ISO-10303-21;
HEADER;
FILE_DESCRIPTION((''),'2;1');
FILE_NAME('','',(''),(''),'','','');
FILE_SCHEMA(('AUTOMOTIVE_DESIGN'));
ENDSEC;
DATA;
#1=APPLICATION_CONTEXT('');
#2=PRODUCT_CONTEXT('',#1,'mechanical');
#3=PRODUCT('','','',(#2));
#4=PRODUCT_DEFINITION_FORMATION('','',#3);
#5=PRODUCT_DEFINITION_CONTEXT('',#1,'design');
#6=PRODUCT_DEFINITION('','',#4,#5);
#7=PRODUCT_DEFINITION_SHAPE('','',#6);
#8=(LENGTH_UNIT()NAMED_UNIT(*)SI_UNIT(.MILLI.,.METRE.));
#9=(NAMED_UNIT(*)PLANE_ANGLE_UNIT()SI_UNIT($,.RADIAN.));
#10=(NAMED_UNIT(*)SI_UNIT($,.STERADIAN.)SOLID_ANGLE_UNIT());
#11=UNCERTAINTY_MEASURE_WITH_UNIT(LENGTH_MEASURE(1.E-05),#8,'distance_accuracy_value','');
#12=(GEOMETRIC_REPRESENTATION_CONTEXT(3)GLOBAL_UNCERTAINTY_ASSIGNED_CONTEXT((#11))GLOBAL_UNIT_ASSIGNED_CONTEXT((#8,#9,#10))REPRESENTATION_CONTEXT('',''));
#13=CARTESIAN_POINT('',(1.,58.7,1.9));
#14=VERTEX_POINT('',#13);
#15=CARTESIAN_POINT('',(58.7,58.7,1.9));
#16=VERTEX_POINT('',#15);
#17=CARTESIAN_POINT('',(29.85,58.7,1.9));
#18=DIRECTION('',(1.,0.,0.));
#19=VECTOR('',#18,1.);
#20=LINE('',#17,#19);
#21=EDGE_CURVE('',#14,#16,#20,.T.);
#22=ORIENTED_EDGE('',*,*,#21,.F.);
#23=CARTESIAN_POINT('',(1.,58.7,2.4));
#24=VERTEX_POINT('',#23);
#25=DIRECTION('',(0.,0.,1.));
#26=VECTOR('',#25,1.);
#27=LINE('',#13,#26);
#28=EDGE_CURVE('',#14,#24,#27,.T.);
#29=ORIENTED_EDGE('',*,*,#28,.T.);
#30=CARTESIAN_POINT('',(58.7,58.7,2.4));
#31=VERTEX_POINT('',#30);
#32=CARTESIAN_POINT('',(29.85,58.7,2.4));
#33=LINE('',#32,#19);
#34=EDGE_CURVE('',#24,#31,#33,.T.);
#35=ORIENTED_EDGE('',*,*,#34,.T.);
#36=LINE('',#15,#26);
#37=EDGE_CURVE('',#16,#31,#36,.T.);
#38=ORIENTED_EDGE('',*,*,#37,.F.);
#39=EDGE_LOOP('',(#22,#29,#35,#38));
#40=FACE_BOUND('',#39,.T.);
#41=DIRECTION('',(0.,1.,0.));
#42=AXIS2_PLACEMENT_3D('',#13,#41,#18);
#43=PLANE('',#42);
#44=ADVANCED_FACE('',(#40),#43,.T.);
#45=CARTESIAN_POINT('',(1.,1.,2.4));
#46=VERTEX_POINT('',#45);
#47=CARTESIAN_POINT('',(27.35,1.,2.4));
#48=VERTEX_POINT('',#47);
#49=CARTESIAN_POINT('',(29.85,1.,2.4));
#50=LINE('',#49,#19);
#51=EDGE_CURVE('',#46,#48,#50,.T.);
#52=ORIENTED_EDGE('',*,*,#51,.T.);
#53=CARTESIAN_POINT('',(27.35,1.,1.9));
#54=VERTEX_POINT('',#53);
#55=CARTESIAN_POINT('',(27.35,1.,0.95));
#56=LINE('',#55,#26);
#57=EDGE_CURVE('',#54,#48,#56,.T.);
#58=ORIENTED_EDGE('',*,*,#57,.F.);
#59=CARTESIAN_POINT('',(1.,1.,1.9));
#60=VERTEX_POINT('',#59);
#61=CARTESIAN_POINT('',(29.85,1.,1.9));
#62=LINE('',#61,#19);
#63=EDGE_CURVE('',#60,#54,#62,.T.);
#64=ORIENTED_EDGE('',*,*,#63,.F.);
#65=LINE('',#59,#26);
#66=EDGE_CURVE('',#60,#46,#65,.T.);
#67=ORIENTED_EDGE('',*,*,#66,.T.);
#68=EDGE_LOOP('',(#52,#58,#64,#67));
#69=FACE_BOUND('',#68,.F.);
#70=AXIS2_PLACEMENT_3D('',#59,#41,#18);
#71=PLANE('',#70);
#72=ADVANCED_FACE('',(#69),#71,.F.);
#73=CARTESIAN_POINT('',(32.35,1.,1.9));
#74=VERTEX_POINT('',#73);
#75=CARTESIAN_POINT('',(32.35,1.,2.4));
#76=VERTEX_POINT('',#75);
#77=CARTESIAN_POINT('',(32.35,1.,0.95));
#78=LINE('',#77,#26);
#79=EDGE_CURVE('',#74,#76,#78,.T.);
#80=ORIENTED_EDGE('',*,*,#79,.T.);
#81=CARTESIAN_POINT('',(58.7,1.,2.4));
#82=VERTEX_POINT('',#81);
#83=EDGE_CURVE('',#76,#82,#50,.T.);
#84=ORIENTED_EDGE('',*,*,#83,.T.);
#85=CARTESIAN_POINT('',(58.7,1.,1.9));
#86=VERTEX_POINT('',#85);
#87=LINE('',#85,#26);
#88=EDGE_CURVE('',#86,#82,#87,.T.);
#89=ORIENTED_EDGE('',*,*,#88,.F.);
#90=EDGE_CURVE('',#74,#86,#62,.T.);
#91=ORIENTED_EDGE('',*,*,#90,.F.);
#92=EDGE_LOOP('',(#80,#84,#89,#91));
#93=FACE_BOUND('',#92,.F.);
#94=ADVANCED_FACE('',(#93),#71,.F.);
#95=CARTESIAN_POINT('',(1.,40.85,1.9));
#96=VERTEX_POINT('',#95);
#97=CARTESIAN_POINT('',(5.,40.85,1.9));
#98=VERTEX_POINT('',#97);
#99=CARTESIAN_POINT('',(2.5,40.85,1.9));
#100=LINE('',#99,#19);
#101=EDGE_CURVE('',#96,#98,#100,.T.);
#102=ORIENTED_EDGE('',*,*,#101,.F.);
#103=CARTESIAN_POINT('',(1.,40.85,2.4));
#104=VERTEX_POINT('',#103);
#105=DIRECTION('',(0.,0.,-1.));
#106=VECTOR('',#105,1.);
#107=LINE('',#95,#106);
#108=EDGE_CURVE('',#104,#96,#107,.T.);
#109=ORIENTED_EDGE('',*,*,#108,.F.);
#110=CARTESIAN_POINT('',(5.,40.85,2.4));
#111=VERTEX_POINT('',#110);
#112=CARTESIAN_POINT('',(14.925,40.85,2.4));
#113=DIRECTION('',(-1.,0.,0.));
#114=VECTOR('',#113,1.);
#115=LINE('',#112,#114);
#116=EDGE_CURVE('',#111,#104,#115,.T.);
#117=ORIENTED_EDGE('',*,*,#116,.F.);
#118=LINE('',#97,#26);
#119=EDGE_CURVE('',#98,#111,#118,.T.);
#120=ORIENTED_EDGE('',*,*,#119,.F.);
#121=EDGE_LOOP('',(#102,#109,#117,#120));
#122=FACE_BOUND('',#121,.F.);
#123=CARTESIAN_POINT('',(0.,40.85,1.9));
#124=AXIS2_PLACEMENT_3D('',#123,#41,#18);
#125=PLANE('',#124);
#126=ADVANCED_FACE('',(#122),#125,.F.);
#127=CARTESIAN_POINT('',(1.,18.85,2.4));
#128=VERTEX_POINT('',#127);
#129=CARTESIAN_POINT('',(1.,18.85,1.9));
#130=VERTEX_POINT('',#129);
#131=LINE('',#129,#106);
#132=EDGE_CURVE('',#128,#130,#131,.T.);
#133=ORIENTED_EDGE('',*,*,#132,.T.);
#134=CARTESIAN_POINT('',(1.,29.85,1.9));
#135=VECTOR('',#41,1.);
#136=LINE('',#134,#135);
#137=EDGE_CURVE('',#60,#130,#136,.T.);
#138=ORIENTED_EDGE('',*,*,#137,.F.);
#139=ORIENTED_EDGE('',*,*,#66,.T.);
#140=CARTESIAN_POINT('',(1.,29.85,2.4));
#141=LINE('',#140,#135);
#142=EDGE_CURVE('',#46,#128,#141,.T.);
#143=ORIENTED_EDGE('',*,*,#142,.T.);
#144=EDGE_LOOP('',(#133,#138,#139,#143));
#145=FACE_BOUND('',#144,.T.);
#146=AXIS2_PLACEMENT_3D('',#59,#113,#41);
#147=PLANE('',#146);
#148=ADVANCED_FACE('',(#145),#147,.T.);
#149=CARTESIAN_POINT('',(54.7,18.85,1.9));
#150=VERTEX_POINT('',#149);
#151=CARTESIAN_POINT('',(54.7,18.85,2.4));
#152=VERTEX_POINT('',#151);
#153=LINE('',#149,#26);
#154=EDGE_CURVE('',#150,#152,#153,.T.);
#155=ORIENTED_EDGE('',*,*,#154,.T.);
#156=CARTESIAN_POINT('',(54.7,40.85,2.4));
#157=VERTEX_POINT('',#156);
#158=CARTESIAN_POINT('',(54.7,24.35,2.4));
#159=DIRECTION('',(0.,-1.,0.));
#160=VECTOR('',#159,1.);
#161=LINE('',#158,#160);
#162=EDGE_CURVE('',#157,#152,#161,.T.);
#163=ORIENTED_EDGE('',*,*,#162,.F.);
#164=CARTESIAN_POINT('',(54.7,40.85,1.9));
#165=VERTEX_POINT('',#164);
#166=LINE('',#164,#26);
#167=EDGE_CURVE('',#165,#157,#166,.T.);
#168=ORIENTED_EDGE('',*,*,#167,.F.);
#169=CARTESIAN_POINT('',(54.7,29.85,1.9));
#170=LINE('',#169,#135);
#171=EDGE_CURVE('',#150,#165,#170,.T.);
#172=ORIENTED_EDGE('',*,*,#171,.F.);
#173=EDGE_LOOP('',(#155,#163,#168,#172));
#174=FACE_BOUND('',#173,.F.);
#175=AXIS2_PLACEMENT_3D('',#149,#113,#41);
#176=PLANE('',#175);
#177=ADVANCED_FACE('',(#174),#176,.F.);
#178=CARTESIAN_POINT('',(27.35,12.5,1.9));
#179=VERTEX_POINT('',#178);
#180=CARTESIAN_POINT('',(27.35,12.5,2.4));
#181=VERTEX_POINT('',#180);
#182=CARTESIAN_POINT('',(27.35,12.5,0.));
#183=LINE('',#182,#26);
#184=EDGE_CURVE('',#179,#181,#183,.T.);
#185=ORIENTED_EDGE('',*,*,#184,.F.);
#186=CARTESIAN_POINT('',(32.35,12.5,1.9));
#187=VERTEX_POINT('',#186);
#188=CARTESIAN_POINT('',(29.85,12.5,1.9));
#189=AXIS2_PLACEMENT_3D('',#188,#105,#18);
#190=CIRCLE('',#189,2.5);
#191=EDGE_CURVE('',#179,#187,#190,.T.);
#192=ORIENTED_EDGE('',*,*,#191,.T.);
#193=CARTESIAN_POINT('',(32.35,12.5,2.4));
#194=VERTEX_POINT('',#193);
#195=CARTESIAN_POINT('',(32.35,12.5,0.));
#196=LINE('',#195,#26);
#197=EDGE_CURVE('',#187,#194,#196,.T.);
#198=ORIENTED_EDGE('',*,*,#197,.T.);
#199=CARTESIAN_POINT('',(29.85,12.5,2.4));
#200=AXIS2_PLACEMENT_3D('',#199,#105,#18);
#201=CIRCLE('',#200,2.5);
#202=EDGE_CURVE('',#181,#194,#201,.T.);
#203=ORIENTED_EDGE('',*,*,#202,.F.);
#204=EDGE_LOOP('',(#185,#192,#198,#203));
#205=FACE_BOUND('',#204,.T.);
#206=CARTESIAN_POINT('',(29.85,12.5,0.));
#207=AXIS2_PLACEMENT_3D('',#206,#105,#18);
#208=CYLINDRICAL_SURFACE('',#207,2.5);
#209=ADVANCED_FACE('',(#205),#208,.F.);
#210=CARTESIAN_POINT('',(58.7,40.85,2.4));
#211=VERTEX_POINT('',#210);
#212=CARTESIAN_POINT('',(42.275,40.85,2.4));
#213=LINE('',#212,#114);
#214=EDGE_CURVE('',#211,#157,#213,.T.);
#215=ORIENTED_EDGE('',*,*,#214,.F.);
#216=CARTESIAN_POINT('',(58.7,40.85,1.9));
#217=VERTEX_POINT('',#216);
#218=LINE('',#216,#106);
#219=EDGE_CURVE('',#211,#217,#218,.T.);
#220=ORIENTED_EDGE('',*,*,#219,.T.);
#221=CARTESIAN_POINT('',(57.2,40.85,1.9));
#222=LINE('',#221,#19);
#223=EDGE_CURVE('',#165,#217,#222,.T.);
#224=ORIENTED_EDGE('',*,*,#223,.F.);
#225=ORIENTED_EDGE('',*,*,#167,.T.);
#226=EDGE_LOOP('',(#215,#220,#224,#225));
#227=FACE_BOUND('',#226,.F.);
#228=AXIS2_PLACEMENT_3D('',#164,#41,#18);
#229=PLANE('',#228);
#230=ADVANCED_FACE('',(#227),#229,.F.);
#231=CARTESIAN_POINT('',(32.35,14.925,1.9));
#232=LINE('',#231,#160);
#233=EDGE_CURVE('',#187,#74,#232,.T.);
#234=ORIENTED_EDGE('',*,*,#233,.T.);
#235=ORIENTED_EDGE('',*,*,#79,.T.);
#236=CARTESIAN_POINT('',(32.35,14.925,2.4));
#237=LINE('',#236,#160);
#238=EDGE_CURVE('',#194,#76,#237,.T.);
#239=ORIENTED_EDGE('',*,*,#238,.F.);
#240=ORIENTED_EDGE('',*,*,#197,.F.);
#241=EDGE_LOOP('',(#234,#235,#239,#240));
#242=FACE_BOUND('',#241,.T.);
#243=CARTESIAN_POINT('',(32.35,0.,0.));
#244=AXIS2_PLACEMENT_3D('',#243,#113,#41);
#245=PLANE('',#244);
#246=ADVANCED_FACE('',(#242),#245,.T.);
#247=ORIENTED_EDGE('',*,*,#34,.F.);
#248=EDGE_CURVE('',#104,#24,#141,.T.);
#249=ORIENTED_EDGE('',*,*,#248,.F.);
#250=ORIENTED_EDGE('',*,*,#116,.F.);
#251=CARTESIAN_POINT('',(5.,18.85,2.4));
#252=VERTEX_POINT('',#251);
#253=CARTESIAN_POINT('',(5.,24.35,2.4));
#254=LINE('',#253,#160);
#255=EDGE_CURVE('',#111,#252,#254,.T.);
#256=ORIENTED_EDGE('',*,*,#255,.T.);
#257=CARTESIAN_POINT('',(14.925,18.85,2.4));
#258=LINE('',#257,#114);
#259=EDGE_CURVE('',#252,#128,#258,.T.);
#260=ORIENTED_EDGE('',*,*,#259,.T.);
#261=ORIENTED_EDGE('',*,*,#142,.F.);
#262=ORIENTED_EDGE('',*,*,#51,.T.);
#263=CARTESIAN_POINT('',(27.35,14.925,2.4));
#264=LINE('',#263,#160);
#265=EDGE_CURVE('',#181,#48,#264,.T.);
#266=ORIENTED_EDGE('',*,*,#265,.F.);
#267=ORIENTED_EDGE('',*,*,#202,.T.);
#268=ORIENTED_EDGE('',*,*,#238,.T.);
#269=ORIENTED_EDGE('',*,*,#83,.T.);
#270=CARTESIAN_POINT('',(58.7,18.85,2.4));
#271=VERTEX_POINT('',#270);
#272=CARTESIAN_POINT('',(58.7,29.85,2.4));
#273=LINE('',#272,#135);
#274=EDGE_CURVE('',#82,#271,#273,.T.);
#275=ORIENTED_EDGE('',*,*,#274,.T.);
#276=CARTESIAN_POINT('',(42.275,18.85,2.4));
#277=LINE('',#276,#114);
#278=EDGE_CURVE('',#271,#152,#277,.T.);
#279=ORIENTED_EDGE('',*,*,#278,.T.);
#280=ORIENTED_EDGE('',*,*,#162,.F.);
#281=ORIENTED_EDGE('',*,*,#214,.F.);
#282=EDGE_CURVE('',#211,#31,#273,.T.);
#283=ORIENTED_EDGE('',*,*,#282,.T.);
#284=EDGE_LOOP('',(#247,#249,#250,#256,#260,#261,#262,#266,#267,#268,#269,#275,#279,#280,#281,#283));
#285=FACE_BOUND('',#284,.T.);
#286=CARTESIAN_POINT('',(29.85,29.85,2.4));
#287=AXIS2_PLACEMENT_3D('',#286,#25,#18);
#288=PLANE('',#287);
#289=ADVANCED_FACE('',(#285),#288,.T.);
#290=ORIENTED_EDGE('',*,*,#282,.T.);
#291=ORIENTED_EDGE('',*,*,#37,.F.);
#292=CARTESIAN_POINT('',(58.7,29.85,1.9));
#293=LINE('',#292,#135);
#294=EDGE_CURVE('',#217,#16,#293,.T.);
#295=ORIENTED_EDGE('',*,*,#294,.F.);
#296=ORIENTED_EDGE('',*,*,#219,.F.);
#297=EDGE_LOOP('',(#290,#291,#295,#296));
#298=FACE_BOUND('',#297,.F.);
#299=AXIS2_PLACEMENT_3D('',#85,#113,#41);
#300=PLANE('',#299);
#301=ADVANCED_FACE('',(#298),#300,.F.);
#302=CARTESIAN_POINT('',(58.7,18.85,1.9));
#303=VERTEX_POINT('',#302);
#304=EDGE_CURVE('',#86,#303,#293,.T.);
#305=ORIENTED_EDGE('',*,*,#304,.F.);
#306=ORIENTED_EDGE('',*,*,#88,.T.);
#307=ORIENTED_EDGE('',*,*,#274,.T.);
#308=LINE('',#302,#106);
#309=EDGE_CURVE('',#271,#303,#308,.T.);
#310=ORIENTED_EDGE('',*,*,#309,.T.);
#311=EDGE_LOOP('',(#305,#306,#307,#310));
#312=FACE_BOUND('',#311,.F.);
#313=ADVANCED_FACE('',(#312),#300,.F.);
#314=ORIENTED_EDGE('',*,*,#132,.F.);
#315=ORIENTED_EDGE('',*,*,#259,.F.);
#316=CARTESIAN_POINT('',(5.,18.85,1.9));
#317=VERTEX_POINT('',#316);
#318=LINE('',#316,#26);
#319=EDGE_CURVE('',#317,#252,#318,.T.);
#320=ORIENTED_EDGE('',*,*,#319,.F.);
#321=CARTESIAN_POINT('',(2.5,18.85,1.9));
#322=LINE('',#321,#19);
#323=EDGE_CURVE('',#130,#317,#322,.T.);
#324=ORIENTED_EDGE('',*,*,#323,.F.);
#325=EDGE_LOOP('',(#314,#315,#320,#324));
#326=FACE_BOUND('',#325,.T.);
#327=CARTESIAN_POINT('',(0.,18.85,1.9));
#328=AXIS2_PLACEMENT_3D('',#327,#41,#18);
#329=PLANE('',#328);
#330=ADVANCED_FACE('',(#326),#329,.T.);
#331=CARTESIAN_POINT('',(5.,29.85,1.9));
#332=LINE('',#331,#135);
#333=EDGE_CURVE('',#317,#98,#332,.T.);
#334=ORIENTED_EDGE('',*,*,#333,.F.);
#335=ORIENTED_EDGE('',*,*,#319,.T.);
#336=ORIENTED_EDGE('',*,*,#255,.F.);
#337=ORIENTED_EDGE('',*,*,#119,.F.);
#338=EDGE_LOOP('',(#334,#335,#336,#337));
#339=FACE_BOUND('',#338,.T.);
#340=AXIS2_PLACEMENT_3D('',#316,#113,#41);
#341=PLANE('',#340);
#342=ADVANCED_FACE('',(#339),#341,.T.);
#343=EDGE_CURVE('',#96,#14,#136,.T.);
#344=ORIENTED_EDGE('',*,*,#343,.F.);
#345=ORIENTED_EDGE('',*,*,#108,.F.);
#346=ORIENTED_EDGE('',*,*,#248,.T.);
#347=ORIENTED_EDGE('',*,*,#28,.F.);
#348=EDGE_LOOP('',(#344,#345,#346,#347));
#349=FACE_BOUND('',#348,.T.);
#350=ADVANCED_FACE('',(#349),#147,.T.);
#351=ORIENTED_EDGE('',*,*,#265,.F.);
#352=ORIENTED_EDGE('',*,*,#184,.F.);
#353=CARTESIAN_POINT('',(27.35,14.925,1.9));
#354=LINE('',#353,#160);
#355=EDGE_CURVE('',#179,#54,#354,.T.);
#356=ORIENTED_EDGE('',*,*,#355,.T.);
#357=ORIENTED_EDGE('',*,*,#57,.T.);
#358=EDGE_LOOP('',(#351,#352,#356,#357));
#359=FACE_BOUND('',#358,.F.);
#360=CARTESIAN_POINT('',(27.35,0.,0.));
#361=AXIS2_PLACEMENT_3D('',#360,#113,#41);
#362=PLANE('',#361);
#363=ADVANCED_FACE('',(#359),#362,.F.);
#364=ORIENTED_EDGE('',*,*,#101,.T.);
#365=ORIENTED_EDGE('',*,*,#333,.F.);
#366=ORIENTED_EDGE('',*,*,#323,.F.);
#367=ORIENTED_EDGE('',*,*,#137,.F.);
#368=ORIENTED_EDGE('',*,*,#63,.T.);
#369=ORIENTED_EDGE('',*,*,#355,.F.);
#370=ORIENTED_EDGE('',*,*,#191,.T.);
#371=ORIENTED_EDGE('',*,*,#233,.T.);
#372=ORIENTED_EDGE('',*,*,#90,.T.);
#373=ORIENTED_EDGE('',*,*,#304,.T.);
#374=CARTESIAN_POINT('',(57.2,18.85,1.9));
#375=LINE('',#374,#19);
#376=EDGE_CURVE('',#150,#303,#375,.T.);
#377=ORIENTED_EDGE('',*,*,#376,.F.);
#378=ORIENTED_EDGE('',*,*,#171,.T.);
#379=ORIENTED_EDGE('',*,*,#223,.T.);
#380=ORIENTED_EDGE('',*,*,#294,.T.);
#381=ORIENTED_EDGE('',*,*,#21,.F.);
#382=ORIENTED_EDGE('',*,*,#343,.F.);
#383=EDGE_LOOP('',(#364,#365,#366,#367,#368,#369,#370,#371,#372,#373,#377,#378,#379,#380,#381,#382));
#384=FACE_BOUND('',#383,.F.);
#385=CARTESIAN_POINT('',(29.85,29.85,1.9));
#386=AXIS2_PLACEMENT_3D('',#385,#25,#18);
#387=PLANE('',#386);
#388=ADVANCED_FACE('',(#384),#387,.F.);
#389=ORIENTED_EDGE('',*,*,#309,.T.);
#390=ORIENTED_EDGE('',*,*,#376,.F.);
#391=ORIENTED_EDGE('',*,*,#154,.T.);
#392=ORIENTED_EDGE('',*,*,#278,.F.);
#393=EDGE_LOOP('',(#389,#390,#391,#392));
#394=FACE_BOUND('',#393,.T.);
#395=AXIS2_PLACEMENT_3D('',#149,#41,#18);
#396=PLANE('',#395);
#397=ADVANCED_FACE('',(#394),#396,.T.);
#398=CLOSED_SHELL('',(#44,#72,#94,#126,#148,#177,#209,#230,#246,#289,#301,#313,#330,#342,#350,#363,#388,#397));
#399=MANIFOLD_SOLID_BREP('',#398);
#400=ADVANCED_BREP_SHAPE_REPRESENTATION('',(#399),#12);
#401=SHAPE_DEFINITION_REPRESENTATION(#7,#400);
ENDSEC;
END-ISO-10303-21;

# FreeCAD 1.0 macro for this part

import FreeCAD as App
import Part
import Sketcher
from FreeCAD import Vector
Q = App.Units.Quantity

doc = App.newDocument("Part")
body = doc.addObject("PartDesign::Body", "Body")

# Sketch on XY plane
sketch1 = doc.addObject("Sketcher::SketchObject", "Sketch")
body.addObject(sketch1)
sketch1.AttachmentSupport = (doc.XY_Plane, [""])
sketch1.MapMode = "FlatFace"
sketch1.addGeometry([
    Part.LineSegment(Vector(27, 12, 0), Vector(27, 0, 0)),
    Part.LineSegment(Vector(27, 0, 0), Vector(32, 0, 0)),
    Part.LineSegment(Vector(32, 0, 0), Vector(32, 12, 0)),
    Part.LineSegment(Vector(32, 12, 0), Vector(27, 12, 0)),
], False)
sketch1.addConstraint([
    Sketcher.Constraint("Coincident", 0, 2, 1, 1),
    Sketcher.Constraint("Coincident", 1, 2, 2, 1),
    Sketcher.Constraint("Coincident", 2, 2, 3, 1),
    Sketcher.Constraint("Coincident", 3, 2, 0, 1),
    Sketcher.Constraint("Vertical", 0),
    Sketcher.Constraint("Horizontal", 1),
    Sketcher.Constraint("Vertical", 2),
    Sketcher.Constraint("Horizontal", 3),
    Sketcher.Constraint("PointOnObject", 0, 2, -1),
    Sketcher.Constraint("DistanceX", 1, 1, 1, 2, Q("5 mm")),
    Sketcher.Constraint("DistanceY", 0, 2, 0, 1, Q("12.5 mm")),
    Sketcher.Constraint("DistanceX", -1, 1, 0, 2, Q("27.35 mm")),
])
pad1 = doc.addObject("PartDesign::Pad", "Pad")
body.addObject(pad1)
pad1.Profile = sketch1
pad1.Length = 5
body2 = doc.addObject("PartDesign::Body", "Body001")

# Sketch on XY plane
sketch2 = doc.addObject("Sketcher::SketchObject", "Sketch001")
body2.addObject(sketch2)
sketch2.AttachmentSupport = (doc.getObject("XY_Plane001"), [""])
sketch2.MapMode = "FlatFace"
sketch2.addGeometry(Part.Circle(Vector(29.9, 12.5, 0), Vector(0, 0, 1), 2.5), False)
sketch2.addConstraint([
    Sketcher.Constraint("Diameter", 0, Q("5 mm")),
    Sketcher.Constraint("DistanceY", -1, 1, 0, 3, Q("12.5 mm")),
    Sketcher.Constraint("DistanceX", -1, 1, 0, 3, Q("29.85 mm")),
])
pad2 = doc.addObject("PartDesign::Pad", "Pad001")
body2.addObject(pad2)
pad2.Profile = sketch2
pad2.Length = 5
body3 = doc.addObject("PartDesign::Body", "Body002")

# Sketch on XY plane
sketch3 = doc.addObject("Sketcher::SketchObject", "Sketch002")
body3.addObject(sketch3)
sketch3.AttachmentSupport = (doc.getObject("XY_Plane002"), [""])
sketch3.MapMode = "FlatFace"
sketch3.AttachmentOffset = App.Placement(Vector(0, 0, 1.9), App.Rotation())
sketch3.addGeometry([
    Part.LineSegment(Vector(55, 41, 0), Vector(55, 19, 0)),
    Part.LineSegment(Vector(55, 19, 0), Vector(60, 19, 0)),
    Part.LineSegment(Vector(60, 19, 0), Vector(60, 41, 0)),
    Part.LineSegment(Vector(60, 41, 0), Vector(55, 41, 0)),
], False)
sketch3.addConstraint([
    Sketcher.Constraint("Coincident", 0, 2, 1, 1),
    Sketcher.Constraint("Coincident", 1, 2, 2, 1),
    Sketcher.Constraint("Coincident", 2, 2, 3, 1),
    Sketcher.Constraint("Coincident", 3, 2, 0, 1),
    Sketcher.Constraint("Vertical", 0),
    Sketcher.Constraint("Horizontal", 1),
    Sketcher.Constraint("Vertical", 2),
    Sketcher.Constraint("Horizontal", 3),
    Sketcher.Constraint("DistanceX", 1, 1, 1, 2, Q("5 mm")),
    Sketcher.Constraint("DistanceY", 0, 2, 0, 1, Q("22 mm")),
    Sketcher.Constraint("DistanceX", -1, 1, 0, 2, Q("54.7 mm")),
    Sketcher.Constraint("DistanceY", -1, 1, 0, 2, Q("18.85 mm")),
])
pad3 = doc.addObject("PartDesign::Pad", "Pad002")
body3.addObject(pad3)
pad3.Profile = sketch3
pad3.Length = 1.9
body4 = doc.addObject("PartDesign::Body", "Body003")

# Sketch on XY plane
sketch4 = doc.addObject("Sketcher::SketchObject", "Sketch003")
body4.addObject(sketch4)
sketch4.AttachmentSupport = (doc.getObject("XY_Plane003"), [""])
sketch4.MapMode = "FlatFace"
sketch4.AttachmentOffset = App.Placement(Vector(0, 0, 1.9), App.Rotation())
sketch4.addGeometry([
    Part.LineSegment(Vector(0, 41, 0), Vector(0, 19, 0)),
    Part.LineSegment(Vector(0, 19, 0), Vector(5, 19, 0)),
    Part.LineSegment(Vector(5, 19, 0), Vector(5, 41, 0)),
    Part.LineSegment(Vector(5, 41, 0), Vector(0, 41, 0)),
], False)
sketch4.addConstraint([
    Sketcher.Constraint("Coincident", 0, 2, 1, 1),
    Sketcher.Constraint("Coincident", 1, 2, 2, 1),
    Sketcher.Constraint("Coincident", 2, 2, 3, 1),
    Sketcher.Constraint("Coincident", 3, 2, 0, 1),
    Sketcher.Constraint("Vertical", 0),
    Sketcher.Constraint("Horizontal", 1),
    Sketcher.Constraint("Vertical", 2),
    Sketcher.Constraint("Horizontal", 3),
    Sketcher.Constraint("PointOnObject", 0, 2, -2),
    Sketcher.Constraint("DistanceX", 1, 1, 1, 2, Q("5 mm")),
    Sketcher.Constraint("DistanceY", 0, 2, 0, 1, Q("22 mm")),
    Sketcher.Constraint("DistanceY", -1, 1, 0, 2, Q("18.85 mm")),
])
pad4 = doc.addObject("PartDesign::Pad", "Pad003")
body4.addObject(pad4)
pad4.Profile = sketch4
pad4.Length = 1.9
body5 = doc.addObject("PartDesign::Body", "Body004")

# Sketch on XY plane
sketch5 = doc.addObject("Sketcher::SketchObject", "Sketch004")
body5.addObject(sketch5)
sketch5.AttachmentSupport = (doc.getObject("XY_Plane004"), [""])
sketch5.MapMode = "FlatFace"
sketch5.AttachmentOffset = App.Placement(Vector(0, 0, 1.9), App.Rotation())
sketch5.addGeometry([
    Part.LineSegment(Vector(1, 59, 0), Vector(1, 1, 0)),
    Part.LineSegment(Vector(1, 1, 0), Vector(59, 1, 0)),
    Part.LineSegment(Vector(59, 1, 0), Vector(59, 59, 0)),
    Part.LineSegment(Vector(59, 59, 0), Vector(1, 59, 0)),
], False)
sketch5.addConstraint([
    Sketcher.Constraint("Coincident", 0, 2, 1, 1),
    Sketcher.Constraint("Coincident", 1, 2, 2, 1),
    Sketcher.Constraint("Coincident", 2, 2, 3, 1),
    Sketcher.Constraint("Coincident", 3, 2, 0, 1),
    Sketcher.Constraint("Vertical", 0),
    Sketcher.Constraint("Horizontal", 1),
    Sketcher.Constraint("Vertical", 2),
    Sketcher.Constraint("Horizontal", 3),
    Sketcher.Constraint("Equal", 3, 0),
    Sketcher.Constraint("DistanceX", 1, 1, 1, 2, Q("57.7 mm")),
    Sketcher.Constraint("DistanceX", -1, 1, 0, 2, Q("1 mm")),
    Sketcher.Constraint("DistanceY", -1, 1, 0, 2, Q("1 mm")),
])
pad5 = doc.addObject("PartDesign::Pad", "Pad004")
body5.addObject(pad5)
pad5.Profile = sketch5
pad5.Length = 0.5
doc.recompute()

boolean = doc.addObject("PartDesign::Boolean", "Boolean")
body5.addObject(boolean)
boolean.Type = "Cut"
boolean.addObjects([body4])
doc.recompute()

boolean2 = doc.addObject("PartDesign::Boolean", "Boolean001")
body5.addObject(boolean2)
boolean2.Type = "Cut"
boolean2.addObjects([body3])
doc.recompute()

boolean3 = doc.addObject("PartDesign::Boolean", "Boolean002")
body5.addObject(boolean3)
boolean3.Type = "Cut"
boolean3.addObjects([body2])
doc.recompute()

boolean4 = doc.addObject("PartDesign::Boolean", "Boolean003")
body5.addObject(boolean4)
boolean4.Type = "Cut"
boolean4.addObjects([body])

doc.recompute()
